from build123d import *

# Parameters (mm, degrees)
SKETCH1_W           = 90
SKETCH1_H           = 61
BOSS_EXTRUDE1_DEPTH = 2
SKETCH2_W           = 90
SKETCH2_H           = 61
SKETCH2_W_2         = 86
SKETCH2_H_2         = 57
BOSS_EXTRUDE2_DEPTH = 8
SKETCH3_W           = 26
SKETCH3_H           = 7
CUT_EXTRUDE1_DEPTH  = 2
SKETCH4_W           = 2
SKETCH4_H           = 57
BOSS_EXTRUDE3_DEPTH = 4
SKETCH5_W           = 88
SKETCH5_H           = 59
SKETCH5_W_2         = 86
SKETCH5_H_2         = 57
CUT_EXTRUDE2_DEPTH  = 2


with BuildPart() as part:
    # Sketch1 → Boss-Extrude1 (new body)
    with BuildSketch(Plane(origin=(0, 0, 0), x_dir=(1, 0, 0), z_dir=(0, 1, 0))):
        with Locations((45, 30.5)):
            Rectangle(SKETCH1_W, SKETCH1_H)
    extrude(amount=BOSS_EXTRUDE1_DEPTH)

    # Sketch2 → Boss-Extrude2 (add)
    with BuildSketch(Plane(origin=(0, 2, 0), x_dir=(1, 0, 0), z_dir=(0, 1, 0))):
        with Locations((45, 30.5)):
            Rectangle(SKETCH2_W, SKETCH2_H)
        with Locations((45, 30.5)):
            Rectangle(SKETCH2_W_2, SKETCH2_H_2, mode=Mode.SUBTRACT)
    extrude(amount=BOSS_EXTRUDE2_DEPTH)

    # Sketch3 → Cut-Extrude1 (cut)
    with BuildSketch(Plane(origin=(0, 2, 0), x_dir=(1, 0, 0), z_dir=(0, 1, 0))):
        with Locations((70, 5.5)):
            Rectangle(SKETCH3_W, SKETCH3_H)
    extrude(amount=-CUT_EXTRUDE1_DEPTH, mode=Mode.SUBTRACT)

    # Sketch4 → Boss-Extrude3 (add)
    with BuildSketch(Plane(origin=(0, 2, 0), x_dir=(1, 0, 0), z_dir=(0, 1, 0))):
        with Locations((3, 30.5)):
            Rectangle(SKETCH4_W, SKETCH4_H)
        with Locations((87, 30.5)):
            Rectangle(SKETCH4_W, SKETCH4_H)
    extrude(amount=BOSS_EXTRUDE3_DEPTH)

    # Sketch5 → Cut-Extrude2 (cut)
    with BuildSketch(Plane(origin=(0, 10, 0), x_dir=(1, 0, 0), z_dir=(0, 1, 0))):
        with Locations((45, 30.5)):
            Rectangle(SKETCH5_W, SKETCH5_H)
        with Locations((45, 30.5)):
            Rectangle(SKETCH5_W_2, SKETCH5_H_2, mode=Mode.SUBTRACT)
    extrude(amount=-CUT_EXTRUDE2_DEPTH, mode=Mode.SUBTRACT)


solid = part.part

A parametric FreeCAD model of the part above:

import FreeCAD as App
import Part
import Sketcher

V = App.Vector
Q = App.Units.Quantity


def add_polygon(sketch, points):
    """Adds a closed chain of lines whose ends are joined by coincident constraints."""
    first, n = sketch.GeometryCount, len(points)
    for a, b in zip(points, points[1:] + points[:1]):
        sketch.addGeometry(Part.LineSegment(App.Vector(*a, 0), App.Vector(*b, 0)), False)
    for i in range(n):
        sketch.addConstraint(Sketcher.Constraint("Coincident", first + i, 2, first + (i + 1) % n, 1))

doc = App.newDocument("Part")
body = doc.addObject("PartDesign::Body", "Body")

sketch1 = doc.addObject("Sketcher::SketchObject", "Sketch")
body.addObject(sketch1)
sketch1.AttachmentSupport = (doc.XZ_Plane, [""])
sketch1.MapMode = "FlatFace"
add_polygon(sketch1, [(0, -61), (0, 0), (90, 0), (90, -61)])
sketch1.addConstraint(Sketcher.Constraint("Vertical", 0))
sketch1.addConstraint(Sketcher.Constraint("Horizontal", 1))
sketch1.addConstraint(Sketcher.Constraint("Vertical", 2))
sketch1.addConstraint(Sketcher.Constraint("Horizontal", 3))
sketch1.addConstraint(Sketcher.Constraint("Coincident", 0, 2, -1, 1))
sketch1.addConstraint(Sketcher.Constraint("DistanceX", 1, 1, 1, 2, Q("90 mm")))
sketch1.addConstraint(Sketcher.Constraint("DistanceY", 0, 1, 0, 2, Q("61 mm")))
pad1 = doc.addObject("PartDesign::Pad", "Pad")
body.addObject(pad1)
pad1.Profile = sketch1
pad1.Length = 2
pad1.Reversed = True

sketch2 = doc.addObject("Sketcher::SketchObject", "Sketch001")
body.addObject(sketch2)
sketch2.AttachmentSupport = (doc.XZ_Plane, [""])
sketch2.MapMode = "FlatFace"
sketch2.AttachmentOffset = App.Placement(V(0, 0, -2), App.Rotation())
add_polygon(sketch2, [(0, -61), (0, 0), (90, 0), (90, -61)])
add_polygon(sketch2, [(88, -2), (2, -2), (2, -59), (88, -59)])
sketch2.addConstraint(Sketcher.Constraint("Vertical", 0))
sketch2.addConstraint(Sketcher.Constraint("Horizontal", 1))
sketch2.addConstraint(Sketcher.Constraint("Vertical", 2))
sketch2.addConstraint(Sketcher.Constraint("Horizontal", 3))
sketch2.addConstraint(Sketcher.Constraint("Horizontal", 4))
sketch2.addConstraint(Sketcher.Constraint("Vertical", 5))
sketch2.addConstraint(Sketcher.Constraint("Horizontal", 6))
sketch2.addConstraint(Sketcher.Constraint("Vertical", 7))
sketch2.addConstraint(Sketcher.Constraint("Coincident", 0, 2, -1, 1))
sketch2.addConstraint(Sketcher.Constraint("DistanceX", 1, 1, 1, 2, Q("90 mm")))
sketch2.addConstraint(Sketcher.Constraint("DistanceX", 4, 2, 4, 1, Q("86 mm")))
sketch2.addConstraint(Sketcher.Constraint("DistanceY", 0, 1, 0, 2, Q("61 mm")))
sketch2.addConstraint(Sketcher.Constraint("DistanceY", 5, 2, 5, 1, Q("57 mm")))
sketch2.addConstraint(Sketcher.Constraint("DistanceX", -1, 1, 4, 2, Q("2 mm")))
sketch2.addConstraint(Sketcher.Constraint("DistanceY", 4, 2, -1, 1, Q("2 mm")))
pad2 = doc.addObject("PartDesign::Pad", "Pad001")
body.addObject(pad2)
pad2.Profile = sketch2
pad2.Length = 8
pad2.Reversed = True

sketch3 = doc.addObject("Sketcher::SketchObject", "Sketch002")
body.addObject(sketch3)
sketch3.AttachmentSupport = (doc.XZ_Plane, [""])
sketch3.MapMode = "FlatFace"
sketch3.AttachmentOffset = App.Placement(V(0, 0, -2), App.Rotation())
add_polygon(sketch3, [(57, -9), (57, -2), (83, -2), (83, -9)])
sketch3.addConstraint(Sketcher.Constraint("Vertical", 0))
sketch3.addConstraint(Sketcher.Constraint("Horizontal", 1))
sketch3.addConstraint(Sketcher.Constraint("Vertical", 2))
sketch3.addConstraint(Sketcher.Constraint("Horizontal", 3))
sketch3.addConstraint(Sketcher.Constraint("DistanceX", 1, 1, 1, 2, Q("26 mm")))
sketch3.addConstraint(Sketcher.Constraint("DistanceY", 0, 1, 0, 2, Q("7 mm")))
sketch3.addConstraint(Sketcher.Constraint("DistanceX", -1, 1, 0, 2, Q("57 mm")))
sketch3.addConstraint(Sketcher.Constraint("DistanceY", 0, 2, -1, 1, Q("2 mm")))
pocket1 = doc.addObject("PartDesign::Pocket", "Pocket")
body.addObject(pocket1)
pocket1.Profile = sketch3
pocket1.Length = 2
pocket1.Reversed = True

sketch4 = doc.addObject("Sketcher::SketchObject", "Sketch003")
body.addObject(sketch4)
sketch4.AttachmentSupport = (doc.XZ_Plane, [""])
sketch4.MapMode = "FlatFace"
sketch4.AttachmentOffset = App.Placement(V(0, 0, -2), App.Rotation())
add_polygon(sketch4, [(2, -59), (2, -2), (4, -2), (4, -59)])
add_polygon(sketch4, [(86, -59), (86, -2), (88, -2), (88, -59)])
sketch4.addConstraint(Sketcher.Constraint("Vertical", 0))
sketch4.addConstraint(Sketcher.Constraint("Horizontal", 1))
sketch4.addConstraint(Sketcher.Constraint("Vertical", 2))
sketch4.addConstraint(Sketcher.Constraint("Horizontal", 3))
sketch4.addConstraint(Sketcher.Constraint("Vertical", 4))
sketch4.addConstraint(Sketcher.Constraint("Horizontal", 5))
sketch4.addConstraint(Sketcher.Constraint("Vertical", 6))
sketch4.addConstraint(Sketcher.Constraint("Horizontal", 7))
sketch4.addConstraint(Sketcher.Constraint("Horizontal", 1, 2, 4, 2))
sketch4.addConstraint(Sketcher.Constraint("Horizontal", 3, 2, 6, 2))
sketch4.addConstraint(Sketcher.Constraint("Equal", 3, 5))
sketch4.addConstraint(Sketcher.Constraint("DistanceX", 1, 1, 1, 2, Q("2 mm")))
sketch4.addConstraint(Sketcher.Constraint("DistanceY", 0, 1, 0, 2, Q("57 mm")))
sketch4.addConstraint(Sketcher.Constraint("DistanceX", -1, 1, 0, 2, Q("2 mm")))
sketch4.addConstraint(Sketcher.Constraint("DistanceY", 0, 2, -1, 1, Q("2 mm")))
sketch4.addConstraint(Sketcher.Constraint("DistanceX", -1, 1, 4, 2, Q("86 mm")))
pad3 = doc.addObject("PartDesign::Pad", "Pad002")
body.addObject(pad3)
pad3.Profile = sketch4
pad3.Length = 4
pad3.Reversed = True

sketch5 = doc.addObject("Sketcher::SketchObject", "Sketch004")
body.addObject(sketch5)
sketch5.AttachmentSupport = (doc.XZ_Plane, [""])
sketch5.MapMode = "FlatFace"
sketch5.AttachmentOffset = App.Placement(V(0, 0, -10), App.Rotation())
add_polygon(sketch5, [(1, -60), (1, -1), (89, -1), (89, -60)])
add_polygon(sketch5, [(88, -2), (2, -2), (2, -59), (88, -59)])
sketch5.addConstraint(Sketcher.Constraint("Vertical", 0))
sketch5.addConstraint(Sketcher.Constraint("Horizontal", 1))
sketch5.addConstraint(Sketcher.Constraint("Vertical", 2))
sketch5.addConstraint(Sketcher.Constraint("Horizontal", 3))
sketch5.addConstraint(Sketcher.Constraint("Horizontal", 4))
sketch5.addConstraint(Sketcher.Constraint("Vertical", 5))
sketch5.addConstraint(Sketcher.Constraint("Horizontal", 6))
sketch5.addConstraint(Sketcher.Constraint("Vertical", 7))
sketch5.addConstraint(Sketcher.Constraint("DistanceX", 1, 1, 1, 2, Q("88 mm")))
sketch5.addConstraint(Sketcher.Constraint("DistanceX", 4, 2, 4, 1, Q("86 mm")))
sketch5.addConstraint(Sketcher.Constraint("DistanceY", 0, 1, 0, 2, Q("59 mm")))
sketch5.addConstraint(Sketcher.Constraint("DistanceY", 5, 2, 5, 1, Q("57 mm")))
sketch5.addConstraint(Sketcher.Constraint("DistanceX", -1, 1, 0, 2, Q("1 mm")))
sketch5.addConstraint(Sketcher.Constraint("DistanceY", 0, 2, -1, 1, Q("1 mm")))
sketch5.addConstraint(Sketcher.Constraint("DistanceX", -1, 1, 4, 2, Q("2 mm")))
sketch5.addConstraint(Sketcher.Constraint("DistanceY", 4, 2, -1, 1, Q("2 mm")))
pocket2 = doc.addObject("PartDesign::Pocket", "Pocket001")
body.addObject(pocket2)
pocket2.Profile = sketch5
pocket2.Length = 2
pocket2.Reversed = True

doc.recompute()
